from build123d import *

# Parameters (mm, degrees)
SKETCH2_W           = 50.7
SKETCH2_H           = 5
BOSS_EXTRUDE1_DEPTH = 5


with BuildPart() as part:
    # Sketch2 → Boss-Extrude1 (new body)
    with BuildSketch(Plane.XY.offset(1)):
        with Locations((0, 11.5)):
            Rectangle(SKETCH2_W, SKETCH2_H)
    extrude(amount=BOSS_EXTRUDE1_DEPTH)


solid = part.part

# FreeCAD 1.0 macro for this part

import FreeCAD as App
import Part
import Sketcher
Q = App.Units.Quantity

doc = App.newDocument("Part")
params = doc.addObject("Spreadsheet::Sheet", "Params")
for row, (alias, value) in enumerate([
    ("sketch1_height", "5 mm"),
    ("sketch1_width", "50.7 mm"),
    ("pad1_length", "5 mm"),
], start=1):
    params.set(f"A{row}", alias)
    params.set(f"B{row}", "=" + value)
    params.setAlias(f"B{row}", alias)

body = doc.addObject("PartDesign::Body", "Body")

sketch1 = body.newObject("Sketcher::SketchObject", "Sketch")
sketch1.AttachmentSupport = (doc.getObject("XY_Plane"), [""])
sketch1.MapMode = "FlatFace"
sketch1.AttachmentOffset = App.Placement(App.Vector(0, 0, 1), App.Rotation())
sketch1.addGeometry([
    Part.LineSegment(App.Vector(-25.35, 14, 0), App.Vector(-25.35, 9, 0)),
    Part.LineSegment(App.Vector(-25.35, 9, 0), App.Vector(25.35, 9, 0)),
    Part.LineSegment(App.Vector(25.35, 9, 0), App.Vector(25.35, 14, 0)),
    Part.LineSegment(App.Vector(25.35, 14, 0), App.Vector(-25.35, 14, 0)),
], False)
sketch1.addConstraint([
    Sketcher.Constraint("Coincident", 0, 2, 1, 1),
    Sketcher.Constraint("Coincident", 1, 2, 2, 1),
    Sketcher.Constraint("Coincident", 2, 2, 3, 1),
    Sketcher.Constraint("Coincident", 3, 2, 0, 1),
    Sketcher.Constraint("Vertical", 0),
    Sketcher.Constraint("Horizontal", 1),
    Sketcher.Constraint("Vertical", 2),
    Sketcher.Constraint("Horizontal", 3),
    Sketcher.Constraint("DistanceY", 0, 2, 0, 1, Q("5 mm")),
    Sketcher.Constraint("DistanceX", 1, 1, 1, 2, Q("50.7 mm")),
    Sketcher.Constraint("DistanceY", -1, 1, 0, 2, Q("9 mm")),
    Sketcher.Constraint("DistanceX", 0, 2, -1, 1, Q("25.35 mm")),
])
sketch1.setExpression("Constraints[8]", "Params.sketch1_height")
sketch1.setExpression("Constraints[9]", "Params.sketch1_width")
pad1 = body.newObject("PartDesign::Pad", "Pad")
pad1.Profile = sketch1
pad1.setExpression("Length", "Params.pad1_length")

doc.recompute()
